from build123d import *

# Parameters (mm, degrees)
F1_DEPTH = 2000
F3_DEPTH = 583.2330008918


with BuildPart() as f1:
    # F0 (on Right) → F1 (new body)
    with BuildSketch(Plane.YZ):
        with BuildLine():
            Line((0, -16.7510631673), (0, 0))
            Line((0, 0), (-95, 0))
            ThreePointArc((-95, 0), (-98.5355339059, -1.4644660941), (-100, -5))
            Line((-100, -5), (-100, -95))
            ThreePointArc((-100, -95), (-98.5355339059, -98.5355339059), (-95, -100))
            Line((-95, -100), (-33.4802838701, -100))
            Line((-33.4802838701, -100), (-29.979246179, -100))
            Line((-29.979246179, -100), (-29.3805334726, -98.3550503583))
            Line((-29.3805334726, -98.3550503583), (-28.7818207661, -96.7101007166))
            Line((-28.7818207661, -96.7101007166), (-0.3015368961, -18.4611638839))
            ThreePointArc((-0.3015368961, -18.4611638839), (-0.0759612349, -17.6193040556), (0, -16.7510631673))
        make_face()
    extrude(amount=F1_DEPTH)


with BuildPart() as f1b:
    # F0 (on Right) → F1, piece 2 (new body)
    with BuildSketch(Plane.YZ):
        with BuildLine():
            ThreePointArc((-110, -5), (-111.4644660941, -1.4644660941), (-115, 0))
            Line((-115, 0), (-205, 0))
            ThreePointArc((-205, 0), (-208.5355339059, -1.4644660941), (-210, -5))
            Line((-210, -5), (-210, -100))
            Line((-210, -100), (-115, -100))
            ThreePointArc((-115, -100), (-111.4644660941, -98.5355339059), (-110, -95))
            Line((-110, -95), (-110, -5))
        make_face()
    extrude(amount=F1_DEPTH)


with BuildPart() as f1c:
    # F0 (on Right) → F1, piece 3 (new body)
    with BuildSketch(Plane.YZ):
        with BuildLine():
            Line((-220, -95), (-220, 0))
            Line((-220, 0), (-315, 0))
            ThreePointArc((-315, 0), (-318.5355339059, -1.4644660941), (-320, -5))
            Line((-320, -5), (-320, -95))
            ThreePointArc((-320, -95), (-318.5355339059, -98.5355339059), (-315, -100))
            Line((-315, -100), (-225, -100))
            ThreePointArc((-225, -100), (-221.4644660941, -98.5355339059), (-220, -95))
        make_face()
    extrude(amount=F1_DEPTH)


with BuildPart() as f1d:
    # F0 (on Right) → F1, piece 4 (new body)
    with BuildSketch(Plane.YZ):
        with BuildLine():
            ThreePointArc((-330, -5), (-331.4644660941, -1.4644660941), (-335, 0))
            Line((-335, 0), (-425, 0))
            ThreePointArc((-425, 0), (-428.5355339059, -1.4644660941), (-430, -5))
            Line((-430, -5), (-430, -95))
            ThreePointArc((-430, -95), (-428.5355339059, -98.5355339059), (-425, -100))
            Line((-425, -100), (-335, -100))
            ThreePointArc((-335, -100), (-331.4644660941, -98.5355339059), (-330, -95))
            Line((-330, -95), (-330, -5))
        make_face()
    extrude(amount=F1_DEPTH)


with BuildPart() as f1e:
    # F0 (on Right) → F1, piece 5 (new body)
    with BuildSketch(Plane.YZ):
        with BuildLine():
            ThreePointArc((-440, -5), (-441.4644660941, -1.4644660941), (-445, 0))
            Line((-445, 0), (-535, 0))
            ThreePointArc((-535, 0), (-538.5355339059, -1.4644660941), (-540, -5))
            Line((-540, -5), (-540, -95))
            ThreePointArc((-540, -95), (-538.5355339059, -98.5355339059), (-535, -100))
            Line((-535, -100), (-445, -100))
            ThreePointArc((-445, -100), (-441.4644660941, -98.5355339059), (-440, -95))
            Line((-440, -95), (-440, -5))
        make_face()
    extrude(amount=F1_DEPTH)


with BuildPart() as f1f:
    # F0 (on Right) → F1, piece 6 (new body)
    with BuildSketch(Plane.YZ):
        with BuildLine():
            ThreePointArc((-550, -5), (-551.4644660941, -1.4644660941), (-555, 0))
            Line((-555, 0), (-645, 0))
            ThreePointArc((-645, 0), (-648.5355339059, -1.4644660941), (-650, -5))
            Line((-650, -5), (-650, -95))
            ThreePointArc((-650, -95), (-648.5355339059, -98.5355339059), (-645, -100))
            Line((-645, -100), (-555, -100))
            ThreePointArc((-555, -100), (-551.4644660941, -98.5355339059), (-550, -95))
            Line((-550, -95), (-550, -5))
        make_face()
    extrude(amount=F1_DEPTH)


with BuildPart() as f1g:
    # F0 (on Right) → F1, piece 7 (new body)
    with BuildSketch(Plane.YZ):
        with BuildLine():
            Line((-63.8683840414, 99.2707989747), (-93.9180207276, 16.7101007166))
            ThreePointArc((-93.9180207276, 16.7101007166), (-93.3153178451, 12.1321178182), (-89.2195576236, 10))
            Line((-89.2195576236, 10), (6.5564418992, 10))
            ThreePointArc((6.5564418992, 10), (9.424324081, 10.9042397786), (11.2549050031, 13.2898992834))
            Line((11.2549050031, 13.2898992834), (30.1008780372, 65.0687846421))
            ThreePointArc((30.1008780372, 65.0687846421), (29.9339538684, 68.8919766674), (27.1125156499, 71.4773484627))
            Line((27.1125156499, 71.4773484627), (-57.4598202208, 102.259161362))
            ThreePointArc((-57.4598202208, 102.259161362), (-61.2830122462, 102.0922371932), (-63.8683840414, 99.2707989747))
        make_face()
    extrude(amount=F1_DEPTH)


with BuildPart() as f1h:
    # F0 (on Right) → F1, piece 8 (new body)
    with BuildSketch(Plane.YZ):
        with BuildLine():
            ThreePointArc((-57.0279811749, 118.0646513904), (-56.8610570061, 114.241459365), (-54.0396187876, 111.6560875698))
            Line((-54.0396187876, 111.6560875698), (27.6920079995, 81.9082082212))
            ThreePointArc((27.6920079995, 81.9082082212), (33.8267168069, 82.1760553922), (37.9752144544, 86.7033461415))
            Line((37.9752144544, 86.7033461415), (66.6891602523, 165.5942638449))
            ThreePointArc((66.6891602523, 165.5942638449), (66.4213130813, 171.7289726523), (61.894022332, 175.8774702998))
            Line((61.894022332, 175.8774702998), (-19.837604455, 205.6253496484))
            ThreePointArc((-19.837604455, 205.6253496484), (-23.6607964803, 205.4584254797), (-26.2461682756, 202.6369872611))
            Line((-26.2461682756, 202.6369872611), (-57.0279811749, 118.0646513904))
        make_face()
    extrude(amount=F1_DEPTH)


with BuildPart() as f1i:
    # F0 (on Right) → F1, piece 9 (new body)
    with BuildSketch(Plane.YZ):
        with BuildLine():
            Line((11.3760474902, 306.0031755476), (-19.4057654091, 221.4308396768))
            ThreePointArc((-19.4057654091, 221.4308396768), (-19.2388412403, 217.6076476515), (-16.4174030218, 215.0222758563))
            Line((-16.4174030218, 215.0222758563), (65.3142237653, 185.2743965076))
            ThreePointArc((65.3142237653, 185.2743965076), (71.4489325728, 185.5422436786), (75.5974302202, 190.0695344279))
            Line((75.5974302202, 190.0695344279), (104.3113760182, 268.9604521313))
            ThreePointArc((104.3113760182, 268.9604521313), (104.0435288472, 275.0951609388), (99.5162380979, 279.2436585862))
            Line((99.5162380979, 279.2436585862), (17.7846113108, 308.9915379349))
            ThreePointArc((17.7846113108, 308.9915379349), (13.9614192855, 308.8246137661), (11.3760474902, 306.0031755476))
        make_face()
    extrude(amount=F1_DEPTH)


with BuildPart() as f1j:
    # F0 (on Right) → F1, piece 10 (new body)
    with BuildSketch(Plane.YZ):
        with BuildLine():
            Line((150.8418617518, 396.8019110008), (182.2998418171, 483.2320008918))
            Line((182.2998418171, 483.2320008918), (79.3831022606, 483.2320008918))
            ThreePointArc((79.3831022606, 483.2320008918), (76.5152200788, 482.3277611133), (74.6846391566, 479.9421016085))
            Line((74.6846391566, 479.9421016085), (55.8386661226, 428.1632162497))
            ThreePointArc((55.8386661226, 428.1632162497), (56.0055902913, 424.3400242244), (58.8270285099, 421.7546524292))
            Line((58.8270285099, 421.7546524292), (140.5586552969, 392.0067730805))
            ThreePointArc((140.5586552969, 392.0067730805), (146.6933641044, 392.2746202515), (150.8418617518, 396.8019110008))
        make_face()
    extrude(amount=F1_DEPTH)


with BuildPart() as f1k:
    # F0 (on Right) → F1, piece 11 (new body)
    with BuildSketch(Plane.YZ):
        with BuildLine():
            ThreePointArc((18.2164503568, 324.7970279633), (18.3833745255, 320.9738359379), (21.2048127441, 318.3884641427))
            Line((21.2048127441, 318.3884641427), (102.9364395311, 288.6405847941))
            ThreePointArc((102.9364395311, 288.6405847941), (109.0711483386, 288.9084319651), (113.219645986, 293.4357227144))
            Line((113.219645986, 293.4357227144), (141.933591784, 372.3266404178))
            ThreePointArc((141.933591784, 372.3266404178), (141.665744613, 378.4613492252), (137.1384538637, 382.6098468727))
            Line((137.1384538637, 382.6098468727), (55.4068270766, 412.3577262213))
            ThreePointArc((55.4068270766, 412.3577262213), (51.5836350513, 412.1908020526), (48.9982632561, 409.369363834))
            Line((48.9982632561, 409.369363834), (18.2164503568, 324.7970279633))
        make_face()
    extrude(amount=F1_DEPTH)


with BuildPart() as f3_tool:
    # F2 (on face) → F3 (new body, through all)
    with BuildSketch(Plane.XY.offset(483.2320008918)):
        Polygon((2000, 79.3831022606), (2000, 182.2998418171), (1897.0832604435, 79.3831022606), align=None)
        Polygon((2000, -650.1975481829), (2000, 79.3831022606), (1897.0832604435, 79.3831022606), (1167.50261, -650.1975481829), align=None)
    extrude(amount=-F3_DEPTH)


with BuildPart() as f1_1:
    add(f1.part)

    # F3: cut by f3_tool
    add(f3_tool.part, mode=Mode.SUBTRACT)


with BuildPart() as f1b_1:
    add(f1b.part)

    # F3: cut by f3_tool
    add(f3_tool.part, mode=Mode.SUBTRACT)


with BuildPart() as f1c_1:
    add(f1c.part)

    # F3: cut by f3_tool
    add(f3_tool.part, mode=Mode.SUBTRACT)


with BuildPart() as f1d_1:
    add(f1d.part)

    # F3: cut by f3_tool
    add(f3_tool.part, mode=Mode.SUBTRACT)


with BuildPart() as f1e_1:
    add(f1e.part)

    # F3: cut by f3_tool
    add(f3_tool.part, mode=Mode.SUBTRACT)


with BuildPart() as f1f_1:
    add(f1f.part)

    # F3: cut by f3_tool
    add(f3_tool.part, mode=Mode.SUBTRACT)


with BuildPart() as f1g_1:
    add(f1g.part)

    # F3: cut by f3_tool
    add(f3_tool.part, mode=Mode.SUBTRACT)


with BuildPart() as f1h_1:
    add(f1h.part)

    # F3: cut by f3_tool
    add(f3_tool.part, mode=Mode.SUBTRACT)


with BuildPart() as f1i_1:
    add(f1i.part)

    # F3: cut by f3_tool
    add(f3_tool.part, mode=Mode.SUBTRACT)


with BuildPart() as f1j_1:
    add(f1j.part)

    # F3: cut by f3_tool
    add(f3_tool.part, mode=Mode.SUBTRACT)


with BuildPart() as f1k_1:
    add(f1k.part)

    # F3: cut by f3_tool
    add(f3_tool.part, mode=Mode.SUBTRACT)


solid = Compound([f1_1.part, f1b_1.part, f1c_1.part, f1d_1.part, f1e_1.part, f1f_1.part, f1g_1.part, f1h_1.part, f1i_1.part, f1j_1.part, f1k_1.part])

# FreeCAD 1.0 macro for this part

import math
import FreeCAD as App
import Part
import Sketcher

V = App.Vector
Q = App.Units.Quantity

doc = App.newDocument("Part")
body = doc.addObject("PartDesign::Body", "Body")

# Sketch on YZ plane
sketch1 = body.newObject("Sketcher::SketchObject", "Sketch")
sketch1.AttachmentSupport = (doc.getObject("YZ_Plane"), [""])
sketch1.MapMode = "FlatFace"
sketch1.addGeometry([
    Part.LineSegment(V(0, -16.8, 0), V(0, 0, 0)),  # 0
    Part.LineSegment(V(0, 0, 0), V(-95, 0, 0)),  # 1
    Part.ArcOfCircle(Part.Circle(V(-95, -5, 0), V(0, 0, 1), 5), math.radians(90), math.radians(180)),  # 2
    Part.LineSegment(V(-100, -5, 0), V(-100, -95, 0)),  # 3
    Part.ArcOfCircle(Part.Circle(V(-95, -95, 0), V(0, 0, 1), 5), math.radians(180), math.radians(270)),  # 4
    Part.LineSegment(V(-95, -100, 0), V(-30, -100, 0)),  # 5
    Part.LineSegment(V(-30, -100, 0), V(-29.4, -98.4, 0)),  # 6
    Part.LineSegment(V(-29.4, -98.4, 0), V(-28.8, -96.7, 0)),  # 7
    Part.LineSegment(V(-28.8, -96.7, 0), V(-0.3, -18.5, 0)),  # 8
    Part.ArcOfCircle(Part.Circle(V(-5, -16.8, 0), V(0, 0, 1), 5), math.radians(-20), math.radians(0)),  # 9
], False)
sketch1.addConstraint([
    Sketcher.Constraint("Coincident", 0, 2, 1, 1),
    Sketcher.Constraint("Tangent", 1, 2, 2, 1),
    Sketcher.Constraint("Tangent", 2, 2, 3, 1),
    Sketcher.Constraint("Tangent", 3, 2, 4, 1),
    Sketcher.Constraint("Tangent", 4, 2, 5, 1),
    Sketcher.Constraint("Coincident", 5, 2, 6, 1),
    Sketcher.Constraint("Coincident", 6, 2, 7, 1),
    Sketcher.Constraint("Coincident", 7, 2, 8, 1),
    Sketcher.Constraint("Tangent", 8, 2, 9, 1),
    Sketcher.Constraint("Tangent", 9, 2, 0, 1),
    Sketcher.Constraint("Vertical", 0),
    Sketcher.Constraint("Horizontal", 1),
    Sketcher.Constraint("Vertical", 3),
    Sketcher.Constraint("Horizontal", 5),
    Sketcher.Constraint("Coincident", 0, 2, -1, 1),
    Sketcher.Constraint("Equal", 2, 4),
    Sketcher.Constraint("Equal", 4, 9),
    Sketcher.Constraint("Parallel", 6, 7),
    Sketcher.Constraint("Parallel", 7, 8),
    Sketcher.Constraint("Equal", 6, 7),
    Sketcher.Constraint("Radius", 2, Q("5 mm")),
    Sketcher.Constraint("DistanceX", 1, 2, 1, 1, Q("95 mm")),
    Sketcher.Constraint("DistanceY", 3, 2, 3, 1, Q("90 mm")),
    Sketcher.Constraint("Angle", 6, Q("70 deg")),
    Sketcher.Constraint("DistanceY", 7, 2, -1, 1, Q("96.710101 mm")),
    Sketcher.Constraint("Distance", 8, Q("83.270779 mm")),
])
pad1 = body.newObject("PartDesign::Pad", "Pad")
pad1.Profile = sketch1
pad1.Length = 2000
body2 = doc.addObject("PartDesign::Body", "Body001")

# Sketch on YZ plane
sketch2 = body2.newObject("Sketcher::SketchObject", "Sketch001")
sketch2.AttachmentSupport = (doc.getObject("YZ_Plane001"), [""])
sketch2.MapMode = "FlatFace"
sketch2.addGeometry([
    Part.ArcOfCircle(Part.Circle(V(-115, -5, 0), V(0, 0, 1), 5), math.radians(0), math.radians(90)),  # 0
    Part.LineSegment(V(-115, 0, 0), V(-205, 0, 0)),  # 1
    Part.ArcOfCircle(Part.Circle(V(-205, -5, 0), V(0, 0, 1), 5), math.radians(90), math.radians(180)),  # 2
    Part.LineSegment(V(-210, -5, 0), V(-210, -100, 0)),  # 3
    Part.LineSegment(V(-210, -100, 0), V(-115, -100, 0)),  # 4
    Part.ArcOfCircle(Part.Circle(V(-115, -95, 0), V(0, 0, 1), 5), math.radians(-90), math.radians(0)),  # 5
    Part.LineSegment(V(-110, -95, 0), V(-110, -5, 0)),  # 6
], False)
sketch2.addConstraint([
    Sketcher.Constraint("Tangent", 0, 2, 1, 1),
    Sketcher.Constraint("Tangent", 1, 2, 2, 1),
    Sketcher.Constraint("Tangent", 2, 2, 3, 1),
    Sketcher.Constraint("Coincident", 3, 2, 4, 1),
    Sketcher.Constraint("Tangent", 4, 2, 5, 1),
    Sketcher.Constraint("Tangent", 5, 2, 6, 1),
    Sketcher.Constraint("Tangent", 6, 2, 0, 1),
    Sketcher.Constraint("Horizontal", 1),
    Sketcher.Constraint("Vertical", 3),
    Sketcher.Constraint("Horizontal", 4),
    Sketcher.Constraint("Vertical", 6),
    Sketcher.Constraint("Equal", 0, 2),
    Sketcher.Constraint("Equal", 2, 5),
    Sketcher.Constraint("PointOnObject", 0, 2, -1),
    Sketcher.Constraint("Equal", 4, 3),
    Sketcher.Constraint("Radius", 0, Q("5 mm")),
    Sketcher.Constraint("DistanceX", 1, 2, 1, 1, Q("90 mm")),
    Sketcher.Constraint("DistanceX", 0, 3, -1, 1, Q("115 mm")),
])
pad2 = body2.newObject("PartDesign::Pad", "Pad001")
pad2.Profile = sketch2
pad2.Length = 2000
body3 = doc.addObject("PartDesign::Body", "Body002")

# Sketch on YZ plane
sketch3 = body3.newObject("Sketcher::SketchObject", "Sketch002")
sketch3.AttachmentSupport = (doc.getObject("YZ_Plane002"), [""])
sketch3.MapMode = "FlatFace"
sketch3.addGeometry([
    Part.LineSegment(V(-220, -95, 0), V(-220, 0, 0)),  # 0
    Part.LineSegment(V(-220, 0, 0), V(-315, 0, 0)),  # 1
    Part.ArcOfCircle(Part.Circle(V(-315, -5, 0), V(0, 0, 1), 5), math.radians(90), math.radians(180)),  # 2
    Part.LineSegment(V(-320, -5, 0), V(-320, -95, 0)),  # 3
    Part.ArcOfCircle(Part.Circle(V(-315, -95, 0), V(0, 0, 1), 5), math.radians(180), math.radians(270)),  # 4
    Part.LineSegment(V(-315, -100, 0), V(-225, -100, 0)),  # 5
    Part.ArcOfCircle(Part.Circle(V(-225, -95, 0), V(0, 0, 1), 5), math.radians(-90), math.radians(0)),  # 6
], False)
sketch3.addConstraint([
    Sketcher.Constraint("Coincident", 0, 2, 1, 1),
    Sketcher.Constraint("Tangent", 1, 2, 2, 1),
    Sketcher.Constraint("Tangent", 2, 2, 3, 1),
    Sketcher.Constraint("Tangent", 3, 2, 4, 1),
    Sketcher.Constraint("Tangent", 4, 2, 5, 1),
    Sketcher.Constraint("Tangent", 5, 2, 6, 1),
    Sketcher.Constraint("Tangent", 6, 2, 0, 1),
    Sketcher.Constraint("Vertical", 0),
    Sketcher.Constraint("Horizontal", 1),
    Sketcher.Constraint("Vertical", 3),
    Sketcher.Constraint("Horizontal", 5),
    Sketcher.Constraint("Equal", 2, 4),
    Sketcher.Constraint("Equal", 4, 6),
    Sketcher.Constraint("PointOnObject", 0, 2, -1),
    Sketcher.Constraint("Equal", 1, 0),
    Sketcher.Constraint("Radius", 2, Q("5 mm")),
    Sketcher.Constraint("DistanceX", 1, 2, 1, 1, Q("95 mm")),
    Sketcher.Constraint("DistanceX", 2, 3, -1, 1, Q("315 mm")),
])
pad3 = body3.newObject("PartDesign::Pad", "Pad002")
pad3.Profile = sketch3
pad3.Length = 2000
body4 = doc.addObject("PartDesign::Body", "Body003")

# Sketch on YZ plane
sketch4 = body4.newObject("Sketcher::SketchObject", "Sketch003")
sketch4.AttachmentSupport = (doc.getObject("YZ_Plane003"), [""])
sketch4.MapMode = "FlatFace"
sketch4.addGeometry([
    Part.ArcOfCircle(Part.Circle(V(-335, -5, 0), V(0, 0, 1), 5), math.radians(0), math.radians(90)),  # 0
    Part.LineSegment(V(-335, 0, 0), V(-425, 0, 0)),  # 1
    Part.ArcOfCircle(Part.Circle(V(-425, -5, 0), V(0, 0, 1), 5), math.radians(90), math.radians(180)),  # 2
    Part.LineSegment(V(-430, -5, 0), V(-430, -95, 0)),  # 3
    Part.ArcOfCircle(Part.Circle(V(-425, -95, 0), V(0, 0, 1), 5), math.radians(180), math.radians(270)),  # 4
    Part.LineSegment(V(-425, -100, 0), V(-335, -100, 0)),  # 5
    Part.ArcOfCircle(Part.Circle(V(-335, -95, 0), V(0, 0, 1), 5), math.radians(-90), math.radians(0)),  # 6
    Part.LineSegment(V(-330, -95, 0), V(-330, -5, 0)),  # 7
], False)
sketch4.addConstraint([
    Sketcher.Constraint("Tangent", 0, 2, 1, 1),
    Sketcher.Constraint("Tangent", 1, 2, 2, 1),
    Sketcher.Constraint("Tangent", 2, 2, 3, 1),
    Sketcher.Constraint("Tangent", 3, 2, 4, 1),
    Sketcher.Constraint("Tangent", 4, 2, 5, 1),
    Sketcher.Constraint("Tangent", 5, 2, 6, 1),
    Sketcher.Constraint("Tangent", 6, 2, 7, 1),
    Sketcher.Constraint("Tangent", 7, 2, 0, 1),
    Sketcher.Constraint("Horizontal", 1),
    Sketcher.Constraint("Vertical", 3),
    Sketcher.Constraint("Horizontal", 5),
    Sketcher.Constraint("Vertical", 7),
    Sketcher.Constraint("Equal", 0, 2),
    Sketcher.Constraint("Equal", 2, 4),
    Sketcher.Constraint("Equal", 4, 6),
    Sketcher.Constraint("PointOnObject", 0, 2, -1),
    Sketcher.Constraint("Equal", 5, 3),
    Sketcher.Constraint("Radius", 0, Q("5 mm")),
    Sketcher.Constraint("DistanceX", 1, 2, 1, 1, Q("90 mm")),
    Sketcher.Constraint("DistanceX", 0, 3, -1, 1, Q("335 mm")),
])
pad4 = body4.newObject("PartDesign::Pad", "Pad003")
pad4.Profile = sketch4
pad4.Length = 2000
body5 = doc.addObject("PartDesign::Body", "Body004")

# Sketch on YZ plane
sketch5 = body5.newObject("Sketcher::SketchObject", "Sketch004")
sketch5.AttachmentSupport = (doc.getObject("YZ_Plane004"), [""])
sketch5.MapMode = "FlatFace"
sketch5.addGeometry([
    Part.ArcOfCircle(Part.Circle(V(-445, -5, 0), V(0, 0, 1), 5), math.radians(0), math.radians(90)),  # 0
    Part.LineSegment(V(-445, 0, 0), V(-535, 0, 0)),  # 1
    Part.ArcOfCircle(Part.Circle(V(-535, -5, 0), V(0, 0, 1), 5), math.radians(90), math.radians(180)),  # 2
    Part.LineSegment(V(-540, -5, 0), V(-540, -95, 0)),  # 3
    Part.ArcOfCircle(Part.Circle(V(-535, -95, 0), V(0, 0, 1), 5), math.radians(180), math.radians(270)),  # 4
    Part.LineSegment(V(-535, -100, 0), V(-445, -100, 0)),  # 5
    Part.ArcOfCircle(Part.Circle(V(-445, -95, 0), V(0, 0, 1), 5), math.radians(-90), math.radians(0)),  # 6
    Part.LineSegment(V(-440, -95, 0), V(-440, -5, 0)),  # 7
], False)
sketch5.addConstraint([
    Sketcher.Constraint("Tangent", 0, 2, 1, 1),
    Sketcher.Constraint("Tangent", 1, 2, 2, 1),
    Sketcher.Constraint("Tangent", 2, 2, 3, 1),
    Sketcher.Constraint("Tangent", 3, 2, 4, 1),
    Sketcher.Constraint("Tangent", 4, 2, 5, 1),
    Sketcher.Constraint("Tangent", 5, 2, 6, 1),
    Sketcher.Constraint("Tangent", 6, 2, 7, 1),
    Sketcher.Constraint("Tangent", 7, 2, 0, 1),
    Sketcher.Constraint("Horizontal", 1),
    Sketcher.Constraint("Vertical", 3),
    Sketcher.Constraint("Horizontal", 5),
    Sketcher.Constraint("Vertical", 7),
    Sketcher.Constraint("Equal", 0, 2),
    Sketcher.Constraint("Equal", 2, 4),
    Sketcher.Constraint("Equal", 4, 6),
    Sketcher.Constraint("PointOnObject", 0, 2, -1),
    Sketcher.Constraint("Equal", 5, 3),
    Sketcher.Constraint("Radius", 0, Q("5 mm")),
    Sketcher.Constraint("DistanceX", 1, 2, 1, 1, Q("90 mm")),
    Sketcher.Constraint("DistanceX", 0, 3, -1, 1, Q("445 mm")),
])
pad5 = body5.newObject("PartDesign::Pad", "Pad004")
pad5.Profile = sketch5
pad5.Length = 2000
body6 = doc.addObject("PartDesign::Body", "Body005")

# Sketch on YZ plane
sketch6 = body6.newObject("Sketcher::SketchObject", "Sketch005")
sketch6.AttachmentSupport = (doc.getObject("YZ_Plane005"), [""])
sketch6.MapMode = "FlatFace"
sketch6.addGeometry([
    Part.ArcOfCircle(Part.Circle(V(-555, -5, 0), V(0, 0, 1), 5), math.radians(0), math.radians(90)),  # 0
    Part.LineSegment(V(-555, 0, 0), V(-645, 0, 0)),  # 1
    Part.ArcOfCircle(Part.Circle(V(-645, -5, 0), V(0, 0, 1), 5), math.radians(90), math.radians(180)),  # 2
    Part.LineSegment(V(-650, -5, 0), V(-650, -95, 0)),  # 3
    Part.ArcOfCircle(Part.Circle(V(-645, -95, 0), V(0, 0, 1), 5), math.radians(180), math.radians(270)),  # 4
    Part.LineSegment(V(-645, -100, 0), V(-555, -100, 0)),  # 5
    Part.ArcOfCircle(Part.Circle(V(-555, -95, 0), V(0, 0, 1), 5), math.radians(-90), math.radians(0)),  # 6
    Part.LineSegment(V(-550, -95, 0), V(-550, -5, 0)),  # 7
], False)
sketch6.addConstraint([
    Sketcher.Constraint("Tangent", 0, 2, 1, 1),
    Sketcher.Constraint("Tangent", 1, 2, 2, 1),
    Sketcher.Constraint("Tangent", 2, 2, 3, 1),
    Sketcher.Constraint("Tangent", 3, 2, 4, 1),
    Sketcher.Constraint("Tangent", 4, 2, 5, 1),
    Sketcher.Constraint("Tangent", 5, 2, 6, 1),
    Sketcher.Constraint("Tangent", 6, 2, 7, 1),
    Sketcher.Constraint("Tangent", 7, 2, 0, 1),
    Sketcher.Constraint("Horizontal", 1),
    Sketcher.Constraint("Vertical", 3),
    Sketcher.Constraint("Horizontal", 5),
    Sketcher.Constraint("Vertical", 7),
    Sketcher.Constraint("Equal", 0, 2),
    Sketcher.Constraint("Equal", 2, 4),
    Sketcher.Constraint("Equal", 4, 6),
    Sketcher.Constraint("PointOnObject", 0, 2, -1),
    Sketcher.Constraint("Equal", 5, 3),
    Sketcher.Constraint("Radius", 0, Q("5 mm")),
    Sketcher.Constraint("DistanceX", 1, 2, 1, 1, Q("90 mm")),
    Sketcher.Constraint("DistanceX", 0, 3, -1, 1, Q("555 mm")),
])
pad6 = body6.newObject("PartDesign::Pad", "Pad005")
pad6.Profile = sketch6
pad6.Length = 2000
body7 = doc.addObject("PartDesign::Body", "Body006")

# Sketch on YZ plane
sketch7 = body7.newObject("Sketcher::SketchObject", "Sketch006")
sketch7.AttachmentSupport = (doc.getObject("YZ_Plane006"), [""])
sketch7.MapMode = "FlatFace"
sketch7.addGeometry([
    Part.LineSegment(V(-64, 99, 0), V(-94, 17, 0)),  # 0
    Part.ArcOfCircle(Part.Circle(V(-89, 15, 0), V(0, 0, 1), 5), math.radians(160), math.radians(270)),  # 1
    Part.LineSegment(V(-89, 10, 0), V(7, 10, 0)),  # 2
    Part.ArcOfCircle(Part.Circle(V(7, 15, 0), V(0, 0, 1), 5), math.radians(-90), math.radians(-20)),  # 3
    Part.LineSegment(V(11, 13, 0), V(30, 65, 0)),  # 4
    Part.ArcOfCircle(Part.Circle(V(25, 67, 0), V(0, 0, 1), 5), math.radians(-20), math.radians(70)),  # 5
    Part.LineSegment(V(27, 71, 0), V(-57, 102, 0)),  # 6
    Part.ArcOfCircle(Part.Circle(V(-59, 98, 0), V(0, 0, 1), 5), math.radians(70), math.radians(160)),  # 7
], False)
sketch7.addConstraint([
    Sketcher.Constraint("Tangent", 0, 2, 1, 1),
    Sketcher.Constraint("Tangent", 1, 2, 2, 1),
    Sketcher.Constraint("Tangent", 2, 2, 3, 1),
    Sketcher.Constraint("Tangent", 3, 2, 4, 1),
    Sketcher.Constraint("Tangent", 4, 2, 5, 1),
    Sketcher.Constraint("Tangent", 5, 2, 6, 1),
    Sketcher.Constraint("Tangent", 6, 2, 7, 1),
    Sketcher.Constraint("Tangent", 7, 2, 0, 1),
    Sketcher.Constraint("Horizontal", 2),
    Sketcher.Constraint("Equal", 1, 3),
    Sketcher.Constraint("Equal", 3, 5),
    Sketcher.Constraint("Equal", 5, 7),
    Sketcher.Constraint("Parallel", 0, 4),
    Sketcher.Constraint("Perpendicular", 4, 6),
    Sketcher.Constraint("Radius", 1, Q("5 mm")),
    Sketcher.Constraint("Angle", 0, Q("-110 deg")),
    Sketcher.Constraint("Distance", 6, Q("90 mm")),
    Sketcher.Constraint("DistanceY", -1, 1, 1, 3, Q("15 mm")),
    Sketcher.Constraint("DistanceY", -1, 1, 7, 3, Q("97.560698 mm")),
    Sketcher.Constraint("DistanceX", -1, 1, 3, 3, Q("6.556442 mm")),
])
pad7 = body7.newObject("PartDesign::Pad", "Pad006")
pad7.Profile = sketch7
pad7.Length = 2000
body8 = doc.addObject("PartDesign::Body", "Body007")

# Sketch on YZ plane
sketch8 = body8.newObject("Sketcher::SketchObject", "Sketch007")
sketch8.AttachmentSupport = (doc.getObject("YZ_Plane007"), [""])
sketch8.MapMode = "FlatFace"
sketch8.addGeometry([
    Part.ArcOfCircle(Part.Circle(V(-52, 116, 0), V(0, 0, 1), 5), math.radians(160), math.radians(250)),  # 0
    Part.LineSegment(V(-54, 112, 0), V(28, 82, 0)),  # 1
    Part.ArcOfCircle(Part.Circle(V(30, 89, 0), V(0, 0, 1), 8), math.radians(-110), math.radians(-20)),  # 2
    Part.LineSegment(V(38, 87, 0), V(67, 166, 0)),  # 3
    Part.ArcOfCircle(Part.Circle(V(59, 168, 0), V(0, 0, 1), 8), math.radians(-20), math.radians(70)),  # 4
    Part.LineSegment(V(62, 176, 0), V(-20, 206, 0)),  # 5
    Part.ArcOfCircle(Part.Circle(V(-22, 201, 0), V(0, 0, 1), 5), math.radians(70), math.radians(160)),  # 6
    Part.LineSegment(V(-26, 203, 0), V(-57, 118, 0)),  # 7
], False)
sketch8.addConstraint([
    Sketcher.Constraint("Tangent", 0, 2, 1, 1),
    Sketcher.Constraint("Tangent", 1, 2, 2, 1),
    Sketcher.Constraint("Tangent", 2, 2, 3, 1),
    Sketcher.Constraint("Tangent", 3, 2, 4, 1),
    Sketcher.Constraint("Tangent", 4, 2, 5, 1),
    Sketcher.Constraint("Tangent", 5, 2, 6, 1),
    Sketcher.Constraint("Tangent", 6, 2, 7, 1),
    Sketcher.Constraint("Tangent", 7, 2, 0, 1),
    Sketcher.Constraint("Equal", 2, 4),
    Sketcher.Constraint("Equal", 0, 6),
    Sketcher.Constraint("Perpendicular", 1, 3),
    Sketcher.Constraint("Perpendicular", 3, 5),
    Sketcher.Constraint("Perpendicular", 5, 7),
    Sketcher.Constraint("Radius", 0, Q("5 mm")),
    Sketcher.Constraint("Angle", 1, Q("-20 deg")),
    Sketcher.Constraint("Distance", 7, Q("90 mm")),
    Sketcher.Constraint("Radius", 2, Q("8.023019 mm")),
    Sketcher.Constraint("DistanceY", -1, 1, 4, 3, Q("168.338298 mm")),
    Sketcher.Constraint("Distance", 1, Q("86.976981 mm")),
    Sketcher.Constraint("DistanceX", 0, 3, -1, 1, Q("52.329518 mm")),
])
pad8 = body8.newObject("PartDesign::Pad", "Pad007")
pad8.Profile = sketch8
pad8.Length = 2000
body9 = doc.addObject("PartDesign::Body", "Body008")

# Sketch on YZ plane
sketch9 = body9.newObject("Sketcher::SketchObject", "Sketch008")
sketch9.AttachmentSupport = (doc.getObject("YZ_Plane008"), [""])
sketch9.MapMode = "FlatFace"
sketch9.addGeometry([
    Part.LineSegment(V(11, 306, 0), V(-19, 221, 0)),  # 0
    Part.ArcOfCircle(Part.Circle(V(-15, 220, 0), V(0, 0, 1), 5), math.radians(160), math.radians(250)),  # 1
    Part.LineSegment(V(-16, 215, 0), V(65, 185, 0)),  # 2
    Part.ArcOfCircle(Part.Circle(V(68, 193, 0), V(0, 0, 1), 8), math.radians(-110), math.radians(-20)),  # 3
    Part.LineSegment(V(76, 190, 0), V(104, 269, 0)),  # 4
    Part.ArcOfCircle(Part.Circle(V(97, 272, 0), V(0, 0, 1), 8), math.radians(-20), math.radians(70)),  # 5
    Part.LineSegment(V(100, 279, 0), V(18, 309, 0)),  # 6
    Part.ArcOfCircle(Part.Circle(V(16, 304, 0), V(0, 0, 1), 5), math.radians(70), math.radians(160)),  # 7
], False)
sketch9.addConstraint([
    Sketcher.Constraint("Tangent", 0, 2, 1, 1),
    Sketcher.Constraint("Tangent", 1, 2, 2, 1),
    Sketcher.Constraint("Tangent", 2, 2, 3, 1),
    Sketcher.Constraint("Tangent", 3, 2, 4, 1),
    Sketcher.Constraint("Tangent", 4, 2, 5, 1),
    Sketcher.Constraint("Tangent", 5, 2, 6, 1),
    Sketcher.Constraint("Tangent", 6, 2, 7, 1),
    Sketcher.Constraint("Tangent", 7, 2, 0, 1),
    Sketcher.Constraint("Equal", 3, 5),
    Sketcher.Constraint("Equal", 1, 7),
    Sketcher.Constraint("Perpendicular", 0, 2),
    Sketcher.Constraint("Perpendicular", 2, 4),
    Sketcher.Constraint("Perpendicular", 4, 6),
    Sketcher.Constraint("Radius", 1, Q("5 mm")),
    Sketcher.Constraint("Angle", 0, Q("-110 deg")),
    Sketcher.Constraint("Distance", 0, Q("90 mm")),
    Sketcher.Constraint("Radius", 3, Q("8.023019 mm")),
    Sketcher.Constraint("Distance", 2, Q("86.976981 mm")),
    Sketcher.Constraint("DistanceY", -1, 1, 1, 3, Q("219.720739 mm")),
    Sketcher.Constraint("DistanceX", -1, 1, 3, 3, Q("68.058258 mm")),
])
pad9 = body9.newObject("PartDesign::Pad", "Pad008")
pad9.Profile = sketch9
pad9.Length = 2000
body10 = doc.addObject("PartDesign::Body", "Body009")

# Sketch on YZ plane
sketch10 = body10.newObject("Sketcher::SketchObject", "Sketch009")
sketch10.AttachmentSupport = (doc.getObject("YZ_Plane009"), [""])
sketch10.MapMode = "FlatFace"
sketch10.addGeometry([
    Part.LineSegment(V(151, 397, 0), V(182, 483, 0)),  # 0
    Part.LineSegment(V(182, 483, 0), V(79, 483, 0)),  # 1
    Part.ArcOfCircle(Part.Circle(V(79, 478, 0), V(0, 0, 1), 5), math.radians(90), math.radians(160)),  # 2
    Part.LineSegment(V(75, 480, 0), V(56, 428, 0)),  # 3
    Part.ArcOfCircle(Part.Circle(V(61, 426, 0), V(0, 0, 1), 5), math.radians(160), math.radians(250)),  # 4
    Part.LineSegment(V(59, 422, 0), V(141, 392, 0)),  # 5
    Part.ArcOfCircle(Part.Circle(V(143, 400, 0), V(0, 0, 1), 8), math.radians(-110), math.radians(-20)),  # 6
], False)
sketch10.addConstraint([
    Sketcher.Constraint("Coincident", 0, 2, 1, 1),
    Sketcher.Constraint("Tangent", 1, 2, 2, 1),
    Sketcher.Constraint("Tangent", 2, 2, 3, 1),
    Sketcher.Constraint("Tangent", 3, 2, 4, 1),
    Sketcher.Constraint("Tangent", 4, 2, 5, 1),
    Sketcher.Constraint("Tangent", 5, 2, 6, 1),
    Sketcher.Constraint("Tangent", 6, 2, 0, 1),
    Sketcher.Constraint("Horizontal", 1),
    Sketcher.Constraint("Equal", 2, 4),
    Sketcher.Constraint("Parallel", 0, 3),
    Sketcher.Constraint("Perpendicular", 3, 5),
    Sketcher.Constraint("Radius", 2, Q("5 mm")),
    Sketcher.Constraint("Angle", 0, Q("70 deg")),
    Sketcher.Constraint("Radius", 6, Q("8.023019 mm")),
    Sketcher.Constraint("DistanceY", -1, 1, 2, 3, Q("478.232001 mm")),
    Sketcher.Constraint("DistanceX", 1, 2, 1, 1, Q("102.91674 mm")),
    Sketcher.Constraint("Distance", 0, Q("91.976981 mm")),
    Sketcher.Constraint("DistanceX", -1, 1, 4, 3, Q("60.537129 mm")),
])
pad10 = body10.newObject("PartDesign::Pad", "Pad009")
pad10.Profile = sketch10
pad10.Length = 2000
body11 = doc.addObject("PartDesign::Body", "Body010")

# Sketch on YZ plane
sketch11 = body11.newObject("Sketcher::SketchObject", "Sketch010")
sketch11.AttachmentSupport = (doc.getObject("YZ_Plane010"), [""])
sketch11.MapMode = "FlatFace"
sketch11.addGeometry([
    Part.ArcOfCircle(Part.Circle(V(23, 323, 0), V(0, 0, 1), 5), math.radians(160), math.radians(250)),  # 0
    Part.LineSegment(V(21, 318, 0), V(103, 289, 0)),  # 1
    Part.ArcOfCircle(Part.Circle(V(106, 296, 0), V(0, 0, 1), 8), math.radians(-110), math.radians(-20)),  # 2
    Part.LineSegment(V(113, 293, 0), V(142, 372, 0)),  # 3
    Part.ArcOfCircle(Part.Circle(V(134, 375, 0), V(0, 0, 1), 8), math.radians(-20), math.radians(70)),  # 4
    Part.LineSegment(V(137, 383, 0), V(55, 412, 0)),  # 5
    Part.ArcOfCircle(Part.Circle(V(54, 408, 0), V(0, 0, 1), 5), math.radians(70), math.radians(160)),  # 6
    Part.LineSegment(V(49, 409, 0), V(18, 325, 0)),  # 7
], False)
sketch11.addConstraint([
    Sketcher.Constraint("Tangent", 0, 2, 1, 1),
    Sketcher.Constraint("Tangent", 1, 2, 2, 1),
    Sketcher.Constraint("Tangent", 2, 2, 3, 1),
    Sketcher.Constraint("Tangent", 3, 2, 4, 1),
    Sketcher.Constraint("Tangent", 4, 2, 5, 1),
    Sketcher.Constraint("Tangent", 5, 2, 6, 1),
    Sketcher.Constraint("Tangent", 6, 2, 7, 1),
    Sketcher.Constraint("Tangent", 7, 2, 0, 1),
    Sketcher.Constraint("Equal", 2, 4),
    Sketcher.Constraint("Equal", 0, 6),
    Sketcher.Constraint("Perpendicular", 1, 3),
    Sketcher.Constraint("Perpendicular", 3, 5),
    Sketcher.Constraint("Perpendicular", 5, 7),
    Sketcher.Constraint("Radius", 0, Q("5 mm")),
    Sketcher.Constraint("Angle", 1, Q("-20 deg")),
    Sketcher.Constraint("Distance", 7, Q("90 mm")),
    Sketcher.Constraint("Radius", 2, Q("8.023019 mm")),
    Sketcher.Constraint("Distance", 1, Q("86.976981 mm")),
    Sketcher.Constraint("DistanceX", -1, 1, 4, 3, Q("134.39442 mm")),
    Sketcher.Constraint("DistanceY", -1, 1, 3, 2, Q("372.32664 mm")),
])
pad11 = body11.newObject("PartDesign::Pad", "Pad010")
pad11.Profile = sketch11
pad11.Length = 2000
body12 = doc.addObject("PartDesign::Body", "Body011")

# Sketch on XY plane
sketch12 = body12.newObject("Sketcher::SketchObject", "Sketch011")
sketch12.AttachmentSupport = (doc.getObject("XY_Plane011"), [""])
sketch12.MapMode = "FlatFace"
sketch12.AttachmentOffset = App.Placement(V(0, 0, 483.232001), App.Rotation())
sketch12.addGeometry([
    Part.LineSegment(V(2000, 182, 0), V(1168, -650, 0)),
    Part.LineSegment(V(1168, -650, 0), V(2000, -650, 0)),
    Part.LineSegment(V(2000, -650, 0), V(2000, 182, 0)),
], False)
sketch12.addConstraint([
    Sketcher.Constraint("Coincident", 0, 2, 1, 1),
    Sketcher.Constraint("Coincident", 1, 2, 2, 1),
    Sketcher.Constraint("Coincident", 2, 2, 0, 1),
    Sketcher.Constraint("Horizontal", 1),
    Sketcher.Constraint("Vertical", 2),
    Sketcher.Constraint("Equal", 1, 2),
    Sketcher.Constraint("DistanceX", -1, 1, 1, 2, Q("2000 mm")),
    Sketcher.Constraint("Distance", 0, Q("1177.3291 mm")),
    Sketcher.Constraint("DistanceY", 0, 2, -1, 1, Q("650.197548 mm")),
])
pad12 = body12.newObject("PartDesign::Pad", "Pad011")
pad12.Profile = sketch12
pad12.Length = 583.233001
pad12.Reversed = True
doc.recompute()

body13 = doc.addObject("PartDesign::Body", "Body012")
body13.BaseFeature = body12
boolean = body.newObject("PartDesign::Boolean", "Boolean")
boolean.Type = "Cut"
boolean.addObjects([body13])
doc.recompute()

body14 = doc.addObject("PartDesign::Body", "Body013")
body14.BaseFeature = body12
boolean2 = body2.newObject("PartDesign::Boolean", "Boolean001")
boolean2.Type = "Cut"
boolean2.addObjects([body14])
doc.recompute()

body15 = doc.addObject("PartDesign::Body", "Body014")
body15.BaseFeature = body12
boolean3 = body3.newObject("PartDesign::Boolean", "Boolean002")
boolean3.Type = "Cut"
boolean3.addObjects([body15])
doc.recompute()

body16 = doc.addObject("PartDesign::Body", "Body015")
body16.BaseFeature = body12
boolean4 = body4.newObject("PartDesign::Boolean", "Boolean003")
boolean4.Type = "Cut"
boolean4.addObjects([body16])
doc.recompute()

body17 = doc.addObject("PartDesign::Body", "Body016")
body17.BaseFeature = body12
boolean5 = body5.newObject("PartDesign::Boolean", "Boolean004")
boolean5.Type = "Cut"
boolean5.addObjects([body17])
doc.recompute()

body18 = doc.addObject("PartDesign::Body", "Body017")
body18.BaseFeature = body12
boolean6 = body6.newObject("PartDesign::Boolean", "Boolean005")
boolean6.Type = "Cut"
boolean6.addObjects([body18])
doc.recompute()

body19 = doc.addObject("PartDesign::Body", "Body018")
body19.BaseFeature = body12
boolean7 = body7.newObject("PartDesign::Boolean", "Boolean006")
boolean7.Type = "Cut"
boolean7.addObjects([body19])
doc.recompute()

body20 = doc.addObject("PartDesign::Body", "Body019")
body20.BaseFeature = body12
boolean8 = body8.newObject("PartDesign::Boolean", "Boolean007")
boolean8.Type = "Cut"
boolean8.addObjects([body20])
doc.recompute()

body21 = doc.addObject("PartDesign::Body", "Body020")
body21.BaseFeature = body12
boolean9 = body9.newObject("PartDesign::Boolean", "Boolean008")
boolean9.Type = "Cut"
boolean9.addObjects([body21])
doc.recompute()

body22 = doc.addObject("PartDesign::Body", "Body021")
body22.BaseFeature = body12
boolean10 = body10.newObject("PartDesign::Boolean", "Boolean009")
boolean10.Type = "Cut"
boolean10.addObjects([body22])
doc.recompute()

boolean11 = body11.newObject("PartDesign::Boolean", "Boolean010")
boolean11.Type = "Cut"
boolean11.addObjects([body12])

doc.recompute()
